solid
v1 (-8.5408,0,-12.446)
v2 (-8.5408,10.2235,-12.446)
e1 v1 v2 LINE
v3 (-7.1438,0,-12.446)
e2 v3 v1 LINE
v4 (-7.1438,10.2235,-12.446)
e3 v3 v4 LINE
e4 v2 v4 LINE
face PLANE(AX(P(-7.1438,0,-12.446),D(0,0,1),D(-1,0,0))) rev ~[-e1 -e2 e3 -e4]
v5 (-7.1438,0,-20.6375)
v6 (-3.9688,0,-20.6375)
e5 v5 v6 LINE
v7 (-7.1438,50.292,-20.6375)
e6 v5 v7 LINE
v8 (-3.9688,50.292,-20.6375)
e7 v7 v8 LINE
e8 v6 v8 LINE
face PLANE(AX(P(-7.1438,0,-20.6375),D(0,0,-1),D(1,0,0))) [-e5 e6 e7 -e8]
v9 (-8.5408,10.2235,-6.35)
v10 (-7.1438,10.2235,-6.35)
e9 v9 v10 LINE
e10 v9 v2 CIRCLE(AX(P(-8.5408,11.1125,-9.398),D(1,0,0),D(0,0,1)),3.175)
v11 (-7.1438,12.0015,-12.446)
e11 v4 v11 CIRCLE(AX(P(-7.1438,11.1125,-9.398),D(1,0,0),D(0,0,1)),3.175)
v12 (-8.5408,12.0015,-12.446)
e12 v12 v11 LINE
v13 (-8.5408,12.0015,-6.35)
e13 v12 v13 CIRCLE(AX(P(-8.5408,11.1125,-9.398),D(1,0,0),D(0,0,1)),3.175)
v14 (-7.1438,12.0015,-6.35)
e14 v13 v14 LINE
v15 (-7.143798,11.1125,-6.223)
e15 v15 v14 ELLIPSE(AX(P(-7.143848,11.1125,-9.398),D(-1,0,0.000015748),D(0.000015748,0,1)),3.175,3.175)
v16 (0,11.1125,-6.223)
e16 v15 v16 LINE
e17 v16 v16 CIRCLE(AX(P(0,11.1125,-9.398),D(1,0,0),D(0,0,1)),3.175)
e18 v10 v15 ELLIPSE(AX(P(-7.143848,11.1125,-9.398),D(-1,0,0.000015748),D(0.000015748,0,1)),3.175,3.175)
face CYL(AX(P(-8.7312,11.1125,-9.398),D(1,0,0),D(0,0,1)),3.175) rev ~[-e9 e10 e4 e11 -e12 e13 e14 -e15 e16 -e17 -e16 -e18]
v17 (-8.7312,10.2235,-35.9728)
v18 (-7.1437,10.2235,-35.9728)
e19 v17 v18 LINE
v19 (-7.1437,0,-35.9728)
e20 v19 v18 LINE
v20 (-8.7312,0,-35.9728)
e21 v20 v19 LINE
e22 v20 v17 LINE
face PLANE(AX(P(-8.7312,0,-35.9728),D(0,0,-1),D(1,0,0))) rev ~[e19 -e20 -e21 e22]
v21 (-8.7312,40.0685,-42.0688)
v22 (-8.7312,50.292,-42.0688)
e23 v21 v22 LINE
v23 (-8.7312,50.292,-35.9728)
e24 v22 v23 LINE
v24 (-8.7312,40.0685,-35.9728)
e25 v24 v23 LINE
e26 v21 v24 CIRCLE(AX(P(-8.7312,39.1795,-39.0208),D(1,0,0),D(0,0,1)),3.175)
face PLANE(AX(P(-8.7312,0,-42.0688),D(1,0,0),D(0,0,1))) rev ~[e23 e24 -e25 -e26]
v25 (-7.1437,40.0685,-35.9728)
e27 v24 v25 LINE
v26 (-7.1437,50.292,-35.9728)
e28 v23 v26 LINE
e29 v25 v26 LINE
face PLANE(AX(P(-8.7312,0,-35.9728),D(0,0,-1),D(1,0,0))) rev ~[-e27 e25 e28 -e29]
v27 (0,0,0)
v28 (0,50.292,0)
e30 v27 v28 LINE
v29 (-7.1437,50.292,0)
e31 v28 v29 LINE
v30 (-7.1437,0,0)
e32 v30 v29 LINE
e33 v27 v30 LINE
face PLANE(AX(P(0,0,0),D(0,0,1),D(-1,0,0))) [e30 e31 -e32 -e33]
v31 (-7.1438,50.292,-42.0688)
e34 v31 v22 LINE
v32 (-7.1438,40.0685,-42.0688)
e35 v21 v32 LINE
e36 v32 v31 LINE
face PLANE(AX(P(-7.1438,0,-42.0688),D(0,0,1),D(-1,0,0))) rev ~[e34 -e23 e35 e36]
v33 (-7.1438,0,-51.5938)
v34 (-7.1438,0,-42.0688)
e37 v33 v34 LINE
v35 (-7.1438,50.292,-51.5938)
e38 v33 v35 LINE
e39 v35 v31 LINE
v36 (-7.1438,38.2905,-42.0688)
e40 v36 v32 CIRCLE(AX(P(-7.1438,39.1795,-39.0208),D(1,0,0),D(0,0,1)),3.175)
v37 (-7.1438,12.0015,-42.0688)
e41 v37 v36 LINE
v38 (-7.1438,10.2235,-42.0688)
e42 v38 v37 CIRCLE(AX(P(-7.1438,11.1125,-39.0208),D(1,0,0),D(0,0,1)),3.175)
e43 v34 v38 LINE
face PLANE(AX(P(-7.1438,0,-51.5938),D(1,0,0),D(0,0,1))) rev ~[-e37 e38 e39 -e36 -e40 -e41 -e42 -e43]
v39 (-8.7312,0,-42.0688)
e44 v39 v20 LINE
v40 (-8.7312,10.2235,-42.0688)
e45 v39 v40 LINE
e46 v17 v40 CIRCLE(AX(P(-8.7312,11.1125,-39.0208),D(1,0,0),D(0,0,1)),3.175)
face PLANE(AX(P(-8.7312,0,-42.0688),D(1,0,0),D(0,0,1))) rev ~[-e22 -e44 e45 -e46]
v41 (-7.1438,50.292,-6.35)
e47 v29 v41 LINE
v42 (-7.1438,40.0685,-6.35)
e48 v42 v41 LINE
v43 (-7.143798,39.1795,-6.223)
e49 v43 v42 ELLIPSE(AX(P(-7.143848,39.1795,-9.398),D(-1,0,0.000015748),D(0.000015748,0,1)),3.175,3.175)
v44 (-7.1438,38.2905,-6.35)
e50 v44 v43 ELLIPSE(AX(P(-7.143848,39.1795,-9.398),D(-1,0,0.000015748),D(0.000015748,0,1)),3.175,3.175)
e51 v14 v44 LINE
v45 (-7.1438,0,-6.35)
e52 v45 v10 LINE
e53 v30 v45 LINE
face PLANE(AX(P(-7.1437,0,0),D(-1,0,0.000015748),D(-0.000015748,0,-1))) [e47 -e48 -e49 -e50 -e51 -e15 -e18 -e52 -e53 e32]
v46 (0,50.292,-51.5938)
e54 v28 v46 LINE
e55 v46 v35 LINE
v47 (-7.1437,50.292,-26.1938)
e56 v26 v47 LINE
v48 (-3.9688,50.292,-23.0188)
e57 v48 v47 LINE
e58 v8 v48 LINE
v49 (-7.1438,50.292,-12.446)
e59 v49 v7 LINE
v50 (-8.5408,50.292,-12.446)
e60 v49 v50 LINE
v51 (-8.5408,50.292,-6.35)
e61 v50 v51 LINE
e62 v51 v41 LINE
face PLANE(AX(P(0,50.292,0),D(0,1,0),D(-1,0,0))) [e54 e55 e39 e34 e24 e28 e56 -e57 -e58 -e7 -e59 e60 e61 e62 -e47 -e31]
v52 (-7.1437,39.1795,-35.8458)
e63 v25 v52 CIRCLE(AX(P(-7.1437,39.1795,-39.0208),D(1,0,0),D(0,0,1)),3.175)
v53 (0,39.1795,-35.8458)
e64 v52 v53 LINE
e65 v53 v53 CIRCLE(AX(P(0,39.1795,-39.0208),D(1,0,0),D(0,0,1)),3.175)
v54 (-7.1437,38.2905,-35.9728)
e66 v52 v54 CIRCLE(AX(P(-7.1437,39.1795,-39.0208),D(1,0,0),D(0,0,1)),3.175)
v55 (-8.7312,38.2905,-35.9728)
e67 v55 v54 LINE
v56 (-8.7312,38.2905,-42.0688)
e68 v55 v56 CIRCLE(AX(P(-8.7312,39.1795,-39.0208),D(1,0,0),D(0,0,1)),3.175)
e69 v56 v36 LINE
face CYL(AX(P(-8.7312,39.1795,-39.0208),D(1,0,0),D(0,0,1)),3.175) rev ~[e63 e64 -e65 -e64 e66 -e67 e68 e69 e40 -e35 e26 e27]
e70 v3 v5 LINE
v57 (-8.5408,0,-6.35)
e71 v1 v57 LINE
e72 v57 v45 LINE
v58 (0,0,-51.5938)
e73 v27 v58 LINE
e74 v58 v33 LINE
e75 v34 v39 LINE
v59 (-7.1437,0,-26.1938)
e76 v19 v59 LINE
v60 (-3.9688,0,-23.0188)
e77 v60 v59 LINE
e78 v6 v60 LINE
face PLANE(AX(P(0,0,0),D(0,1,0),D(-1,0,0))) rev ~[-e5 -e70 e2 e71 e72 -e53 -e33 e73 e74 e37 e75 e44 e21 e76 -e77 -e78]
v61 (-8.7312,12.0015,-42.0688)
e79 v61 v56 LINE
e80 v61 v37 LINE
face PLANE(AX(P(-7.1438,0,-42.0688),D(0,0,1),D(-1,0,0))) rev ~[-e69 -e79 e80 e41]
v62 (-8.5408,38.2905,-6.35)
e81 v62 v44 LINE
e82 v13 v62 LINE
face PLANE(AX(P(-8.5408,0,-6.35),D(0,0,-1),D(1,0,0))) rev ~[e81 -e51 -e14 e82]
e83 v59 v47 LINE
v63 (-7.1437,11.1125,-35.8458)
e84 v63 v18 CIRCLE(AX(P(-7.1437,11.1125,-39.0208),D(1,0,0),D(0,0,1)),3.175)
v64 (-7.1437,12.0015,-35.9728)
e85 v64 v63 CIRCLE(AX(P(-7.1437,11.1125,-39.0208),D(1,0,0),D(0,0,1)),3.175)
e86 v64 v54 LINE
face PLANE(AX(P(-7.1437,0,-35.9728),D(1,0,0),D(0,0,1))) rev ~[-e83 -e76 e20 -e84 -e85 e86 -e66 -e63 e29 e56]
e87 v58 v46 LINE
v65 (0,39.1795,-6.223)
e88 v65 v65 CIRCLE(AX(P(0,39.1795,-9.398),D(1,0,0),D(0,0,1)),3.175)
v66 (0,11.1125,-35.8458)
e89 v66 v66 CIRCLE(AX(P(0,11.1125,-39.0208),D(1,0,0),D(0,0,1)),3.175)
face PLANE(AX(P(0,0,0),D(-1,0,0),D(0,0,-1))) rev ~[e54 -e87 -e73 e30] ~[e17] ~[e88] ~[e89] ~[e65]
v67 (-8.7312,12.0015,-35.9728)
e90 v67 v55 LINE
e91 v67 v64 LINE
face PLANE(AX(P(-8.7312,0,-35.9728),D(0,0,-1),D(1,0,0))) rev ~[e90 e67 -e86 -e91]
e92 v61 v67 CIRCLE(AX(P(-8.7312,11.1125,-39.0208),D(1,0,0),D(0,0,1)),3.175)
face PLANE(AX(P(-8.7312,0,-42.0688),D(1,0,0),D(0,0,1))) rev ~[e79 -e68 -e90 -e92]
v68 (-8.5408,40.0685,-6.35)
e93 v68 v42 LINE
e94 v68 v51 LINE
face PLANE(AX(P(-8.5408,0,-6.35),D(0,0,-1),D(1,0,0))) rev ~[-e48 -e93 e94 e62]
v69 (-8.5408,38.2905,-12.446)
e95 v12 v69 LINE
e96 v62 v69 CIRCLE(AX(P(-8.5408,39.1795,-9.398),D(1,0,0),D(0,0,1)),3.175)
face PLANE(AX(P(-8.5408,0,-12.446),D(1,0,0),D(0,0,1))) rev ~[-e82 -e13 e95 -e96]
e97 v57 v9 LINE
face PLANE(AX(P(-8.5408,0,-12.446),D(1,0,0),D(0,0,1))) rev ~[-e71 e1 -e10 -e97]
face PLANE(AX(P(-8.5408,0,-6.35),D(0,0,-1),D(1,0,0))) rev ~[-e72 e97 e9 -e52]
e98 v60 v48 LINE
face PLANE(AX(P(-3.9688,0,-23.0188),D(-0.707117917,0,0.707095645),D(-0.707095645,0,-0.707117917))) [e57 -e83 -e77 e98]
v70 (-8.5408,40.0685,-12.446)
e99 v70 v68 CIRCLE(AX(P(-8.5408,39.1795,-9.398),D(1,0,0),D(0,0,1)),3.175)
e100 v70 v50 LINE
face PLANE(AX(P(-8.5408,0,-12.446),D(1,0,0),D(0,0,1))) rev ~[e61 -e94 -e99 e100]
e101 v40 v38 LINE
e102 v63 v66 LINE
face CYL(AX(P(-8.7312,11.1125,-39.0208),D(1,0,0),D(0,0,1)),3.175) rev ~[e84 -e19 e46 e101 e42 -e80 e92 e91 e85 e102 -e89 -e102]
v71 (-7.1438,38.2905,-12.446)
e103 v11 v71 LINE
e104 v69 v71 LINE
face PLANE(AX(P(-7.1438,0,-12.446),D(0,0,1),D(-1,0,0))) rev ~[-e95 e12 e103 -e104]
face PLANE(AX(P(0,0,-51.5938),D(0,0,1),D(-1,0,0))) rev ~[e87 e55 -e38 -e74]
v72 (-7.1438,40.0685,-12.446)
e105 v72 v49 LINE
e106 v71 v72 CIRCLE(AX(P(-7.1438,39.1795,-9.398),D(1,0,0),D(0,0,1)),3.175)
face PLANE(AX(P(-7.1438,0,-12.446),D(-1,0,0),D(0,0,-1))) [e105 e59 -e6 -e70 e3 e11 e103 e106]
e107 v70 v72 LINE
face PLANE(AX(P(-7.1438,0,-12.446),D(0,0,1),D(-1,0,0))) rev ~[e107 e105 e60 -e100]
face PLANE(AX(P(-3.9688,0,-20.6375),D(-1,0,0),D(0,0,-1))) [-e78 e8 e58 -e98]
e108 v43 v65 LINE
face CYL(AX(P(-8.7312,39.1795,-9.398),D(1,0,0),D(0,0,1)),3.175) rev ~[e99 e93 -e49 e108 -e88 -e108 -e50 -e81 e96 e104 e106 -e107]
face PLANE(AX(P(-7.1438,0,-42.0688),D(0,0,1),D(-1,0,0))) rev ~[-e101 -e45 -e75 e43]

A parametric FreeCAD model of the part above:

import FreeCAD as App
import Part
import Sketcher
Q = App.Units.Quantity

doc = App.newDocument("Part")
params = doc.addObject("Spreadsheet::Sheet", "Params")
for row, (alias, value) in enumerate([
    ("sketch1_height", "0.24 in"),
    ("sketch1_height2", "0.25 in"),
    ("sketch1_width", "0.281248 in"),
    ("sketch1_width2", "0.0625 in"),
    ("sketch1_width3", "0.055 in"),
    ("pad1_length", "1.98 in"),
    ("sketch2_diameter", "0.25 in"),
    ("hole_diameter", "0.25 in"),
], start=1):
    params.set(f"A{row}", alias)
    params.set(f"B{row}", "=" + value)
    params.setAlias(f"B{row}", alias)

body = doc.addObject("PartDesign::Body", "Body")

sketch1 = doc.addObject("Sketcher::SketchObject", "Sketch")
body.addObject(sketch1)
sketch1.AttachmentSupport = (doc.XZ_Plane, [""])
sketch1.MapMode = "FlatFace"
sketch1.addGeometry([
    Part.LineSegment(App.Vector(-7.1, 0, 0), App.Vector(0, 0, 0)),
    Part.LineSegment(App.Vector(0, 0, 0), App.Vector(0, -51.6, 0)),
    Part.LineSegment(App.Vector(0, -51.6, 0), App.Vector(-7.1, -51.6, 0)),
    Part.LineSegment(App.Vector(-7.1, -51.6, 0), App.Vector(-7.1, -42.1, 0)),
    Part.LineSegment(App.Vector(-7.1, -42.1, 0), App.Vector(-8.7, -42.1, 0)),
    Part.LineSegment(App.Vector(-8.7, -42.1, 0), App.Vector(-8.7, -36, 0)),
    Part.LineSegment(App.Vector(-8.7, -36, 0), App.Vector(-7.1, -36, 0)),
    Part.LineSegment(App.Vector(-7.1, -36, 0), App.Vector(-7.1, -26.2, 0)),
    Part.LineSegment(App.Vector(-7.1, -26.2, 0), App.Vector(-4, -23, 0)),
    Part.LineSegment(App.Vector(-4, -23, 0), App.Vector(-4, -20.6, 0)),
    Part.LineSegment(App.Vector(-4, -20.6, 0), App.Vector(-7.1, -20.6, 0)),
    Part.LineSegment(App.Vector(-7.1, -20.6, 0), App.Vector(-7.1, -12.4, 0)),
    Part.LineSegment(App.Vector(-7.1, -12.4, 0), App.Vector(-8.5, -12.4, 0)),
    Part.LineSegment(App.Vector(-8.5, -12.4, 0), App.Vector(-8.5, -6.3, 0)),
    Part.LineSegment(App.Vector(-8.5, -6.3, 0), App.Vector(-7.1, -6.3, 0)),
    Part.LineSegment(App.Vector(-7.1, -6.3, 0), App.Vector(-7.1, 0, 0)),
], False)
sketch1.addConstraint([
    Sketcher.Constraint("Coincident", 0, 2, 1, 1),
    Sketcher.Constraint("Coincident", 1, 2, 2, 1),
    Sketcher.Constraint("Coincident", 2, 2, 3, 1),
    Sketcher.Constraint("Coincident", 3, 2, 4, 1),
    Sketcher.Constraint("Coincident", 4, 2, 5, 1),
    Sketcher.Constraint("Coincident", 5, 2, 6, 1),
    Sketcher.Constraint("Coincident", 6, 2, 7, 1),
    Sketcher.Constraint("Coincident", 7, 2, 8, 1),
    Sketcher.Constraint("Coincident", 8, 2, 9, 1),
    Sketcher.Constraint("Coincident", 9, 2, 10, 1),
    Sketcher.Constraint("Coincident", 10, 2, 11, 1),
    Sketcher.Constraint("Coincident", 11, 2, 12, 1),
    Sketcher.Constraint("Coincident", 12, 2, 13, 1),
    Sketcher.Constraint("Coincident", 13, 2, 14, 1),
    Sketcher.Constraint("Coincident", 14, 2, 15, 1),
    Sketcher.Constraint("Coincident", 15, 2, 0, 1),
    Sketcher.Constraint("Horizontal", 0),
    Sketcher.Constraint("Vertical", 1),
    Sketcher.Constraint("Horizontal", 2),
    Sketcher.Constraint("Vertical", 3),
    Sketcher.Constraint("Horizontal", 4),
    Sketcher.Constraint("Vertical", 5),
    Sketcher.Constraint("Horizontal", 6),
    Sketcher.Constraint("Vertical", 7),
    Sketcher.Constraint("Vertical", 9),
    Sketcher.Constraint("Horizontal", 10),
    Sketcher.Constraint("Vertical", 11),
    Sketcher.Constraint("Horizontal", 12),
    Sketcher.Constraint("Vertical", 13),
    Sketcher.Constraint("Horizontal", 14),
    Sketcher.Constraint("Vertical", 15),
    Sketcher.Constraint("Coincident", 0, 2, -1, 1),
    Sketcher.Constraint("Vertical", 3, 2, 6, 2),
    Sketcher.Constraint("Vertical", 7, 2, 10, 2),
    Sketcher.Constraint("Vertical", 11, 2, 14, 2),
    Sketcher.Constraint("Equal", 5, 13),
    Sketcher.Constraint("DistanceY", 5, 1, 5, 2, Q("0.24 in")),
    Sketcher.Constraint("DistanceY", 15, 1, 15, 2, Q("0.25 in")),
    Sketcher.Constraint("DistanceX", 0, 1, 0, 2, Q("0.281248 in")),
    Sketcher.Constraint("DistanceX", 4, 2, 4, 1, Q("0.0625 in")),
    Sketcher.Constraint("DistanceX", 12, 2, 12, 1, Q("0.055 in")),
    Sketcher.Constraint("DistanceY", 1, 2, 1, 1, Q("2.031252 in")),
    Sketcher.Constraint("DistanceY", 3, 1, 3, 2, Q("0.375 in")),
    Sketcher.Constraint("DistanceY", 7, 1, 7, 2, Q("0.385 in")),
    Sketcher.Constraint("DistanceY", 9, 1, 9, 2, Q("0.093752 in")),
    Sketcher.Constraint("DistanceX", 8, 2, -1, 1, Q("0.156252 in")),
    Sketcher.Constraint("DistanceY", 9, 2, -1, 1, Q("0.8125 in")),
])
sketch1.setExpression("Constraints[36]", "Params.sketch1_height")
sketch1.setExpression("Constraints[37]", "Params.sketch1_height2")
sketch1.setExpression("Constraints[38]", "Params.sketch1_width")
sketch1.setExpression("Constraints[39]", "Params.sketch1_width2")
sketch1.setExpression("Constraints[40]", "Params.sketch1_width3")
pad1 = doc.addObject("PartDesign::Pad", "Pad")
body.addObject(pad1)
pad1.Profile = sketch1
pad1.setExpression("Length", "Params.pad1_length")
pad1.Reversed = True

sketch2 = doc.addObject("Sketcher::SketchObject", "Sketch001")
body.addObject(sketch2)
sketch2.AttachmentSupport = (doc.YZ_Plane, [""])
sketch2.MapMode = "FlatFace"
sketch2.AttachmentOffset = App.Placement(App.Vector(0, 0, -0.343748 * 25.4), App.Rotation())
sketch2.addGeometry([
    Part.Circle(App.Vector(39.2, -39, 0), App.Vector(0, 0, 1), 3.2),
    Part.Circle(App.Vector(11.1, -39, 0), App.Vector(0, 0, 1), 3.2),
    Part.Circle(App.Vector(39.2, -9.4, 0), App.Vector(0, 0, 1), 3.2),
    Part.Circle(App.Vector(11.1, -9.4, 0), App.Vector(0, 0, 1), 3.2),
], False)
sketch2.addConstraint([
    Sketcher.Constraint("Equal", 0, 1),
    Sketcher.Constraint("Equal", 1, 2),
    Sketcher.Constraint("Equal", 2, 3),
    Sketcher.Constraint("Horizontal", 0, 3, 1, 3),
    Sketcher.Constraint("Horizontal", 2, 3, 3, 3),
    Sketcher.Constraint("Vertical", 0, 3, 2, 3),
    Sketcher.Constraint("Vertical", 1, 3, 3, 3),
    Sketcher.Constraint("Diameter", 0, Q("0.25 in")),
    Sketcher.Constraint("DistanceY", 2, 3, -1, 1, Q("0.37 in")),
    Sketcher.Constraint("DistanceX", -1, 1, 1, 3, Q("0.4375 in")),
    Sketcher.Constraint("DistanceX", 1, 3, 0, 3, Q("1.105 in")),
    Sketcher.Constraint("DistanceY", 0, 3, -1, 1, 39.0208),
])
sketch2.setExpression("Constraints[7]", "Params.sketch2_diameter")
doc.recompute()
hole = doc.addObject("PartDesign::Hole", "Hole")
body.addObject(hole)
hole.Profile = sketch2
hole.ThreadType = "None"
hole.setExpression("Diameter", "Params.hole_diameter")
hole.DepthType = "ThroughAll"
hole.Reversed = True

doc.recompute()
